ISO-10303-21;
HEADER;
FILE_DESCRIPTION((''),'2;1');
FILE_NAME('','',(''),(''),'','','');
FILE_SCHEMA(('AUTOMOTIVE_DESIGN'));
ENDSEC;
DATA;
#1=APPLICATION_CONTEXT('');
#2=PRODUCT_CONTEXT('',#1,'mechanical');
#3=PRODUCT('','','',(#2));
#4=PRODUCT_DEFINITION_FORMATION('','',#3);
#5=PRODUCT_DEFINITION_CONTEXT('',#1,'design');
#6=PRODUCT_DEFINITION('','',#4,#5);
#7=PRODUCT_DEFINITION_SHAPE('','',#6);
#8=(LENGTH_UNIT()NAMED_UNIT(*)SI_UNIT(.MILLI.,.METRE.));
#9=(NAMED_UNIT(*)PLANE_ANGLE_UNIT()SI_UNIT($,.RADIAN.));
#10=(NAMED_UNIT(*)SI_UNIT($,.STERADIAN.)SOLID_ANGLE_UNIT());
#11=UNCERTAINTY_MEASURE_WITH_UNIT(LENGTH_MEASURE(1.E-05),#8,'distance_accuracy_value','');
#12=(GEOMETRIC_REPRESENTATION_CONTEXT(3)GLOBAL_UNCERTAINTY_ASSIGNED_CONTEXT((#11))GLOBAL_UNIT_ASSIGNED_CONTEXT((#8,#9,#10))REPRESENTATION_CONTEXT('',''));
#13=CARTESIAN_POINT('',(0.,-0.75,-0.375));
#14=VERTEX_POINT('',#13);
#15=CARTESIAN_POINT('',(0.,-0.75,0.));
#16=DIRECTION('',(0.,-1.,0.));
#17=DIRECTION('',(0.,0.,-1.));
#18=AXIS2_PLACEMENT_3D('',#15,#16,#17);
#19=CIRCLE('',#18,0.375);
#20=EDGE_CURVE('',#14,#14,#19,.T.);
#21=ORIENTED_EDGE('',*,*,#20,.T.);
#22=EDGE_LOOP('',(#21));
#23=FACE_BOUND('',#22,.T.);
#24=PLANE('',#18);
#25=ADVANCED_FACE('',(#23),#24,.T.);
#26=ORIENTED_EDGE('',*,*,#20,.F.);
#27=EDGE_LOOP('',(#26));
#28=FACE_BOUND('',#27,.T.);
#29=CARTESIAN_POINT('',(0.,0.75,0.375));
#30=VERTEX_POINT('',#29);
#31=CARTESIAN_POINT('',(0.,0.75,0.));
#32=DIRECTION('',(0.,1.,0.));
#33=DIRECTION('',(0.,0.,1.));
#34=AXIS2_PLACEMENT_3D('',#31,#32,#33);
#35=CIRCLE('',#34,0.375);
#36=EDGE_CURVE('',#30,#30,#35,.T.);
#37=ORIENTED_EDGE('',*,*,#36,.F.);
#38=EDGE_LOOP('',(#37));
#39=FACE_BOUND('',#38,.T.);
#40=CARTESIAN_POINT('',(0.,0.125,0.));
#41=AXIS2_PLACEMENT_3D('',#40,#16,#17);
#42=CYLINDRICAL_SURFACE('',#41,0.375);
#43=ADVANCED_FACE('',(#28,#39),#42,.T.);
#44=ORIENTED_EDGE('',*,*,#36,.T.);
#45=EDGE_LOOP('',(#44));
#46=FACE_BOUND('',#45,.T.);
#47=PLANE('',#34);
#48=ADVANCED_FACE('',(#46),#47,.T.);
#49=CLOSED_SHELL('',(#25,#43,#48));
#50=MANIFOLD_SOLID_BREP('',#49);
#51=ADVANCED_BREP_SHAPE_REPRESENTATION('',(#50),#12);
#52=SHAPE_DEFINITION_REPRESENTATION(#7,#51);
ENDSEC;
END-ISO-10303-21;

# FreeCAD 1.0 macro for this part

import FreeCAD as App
import Part
import Sketcher

V = App.Vector
Q = App.Units.Quantity

doc = App.newDocument("Part")
body = doc.addObject("PartDesign::Body", "Body")

# Sketch on XZ plane
sketch1 = body.newObject("Sketcher::SketchObject", "Sketch")
sketch1.AttachmentSupport = (doc.getObject("XZ_Plane"), [""])
sketch1.MapMode = "FlatFace"
sketch1.addGeometry(Part.Circle(V(0, 0, 0), V(0, 0, 1), 0.375), False)
sketch1.addConstraint([
    Sketcher.Constraint("Coincident", 0, 3, -1, 1),
    Sketcher.Constraint("Diameter", 0, Q("0.75 mm")),
])
pad1 = body.newObject("PartDesign::Pad", "Pad")
pad1.Profile = sketch1
pad1.Length = 0.25
pad1.Midplane = True

# Sketch on XZ plane
sketch2 = body.newObject("Sketcher::SketchObject", "Sketch001")
sketch2.AttachmentSupport = (doc.getObject("XZ_Plane"), [""])
sketch2.MapMode = "FlatFace"
sketch2.AttachmentOffset = App.Placement(V(0, 0, -0.125), App.Rotation())
sketch2.addGeometry(Part.Circle(V(0, 0, 0), V(0, 0, 1), 0.375), False)
sketch2.addConstraint([
    Sketcher.Constraint("Coincident", 0, 3, -1, 1),
    Sketcher.Constraint("Diameter", 0, Q("0.75 mm")),
])
pad2 = body.newObject("PartDesign::Pad", "Pad001")
pad2.Profile = sketch2
pad2.Length = 0.625
pad2.Reversed = True

# Sketch on XZ plane
sketch3 = body.newObject("Sketcher::SketchObject", "Sketch002")
sketch3.AttachmentSupport = (doc.getObject("XZ_Plane"), [""])
sketch3.MapMode = "FlatFace"
sketch3.AttachmentOffset = App.Placement(V(0, 0, 0.125), App.Rotation())
sketch3.addGeometry(Part.Circle(V(0, 0, 0), V(0, 0, 1), 0.375), False)
sketch3.addConstraint([
    Sketcher.Constraint("Coincident", 0, 3, -1, 1),
    Sketcher.Constraint("Diameter", 0, Q("0.75 mm")),
])
pad3 = body.newObject("PartDesign::Pad", "Pad002")
pad3.Profile = sketch3
pad3.Length = 0.625

doc.recompute()
